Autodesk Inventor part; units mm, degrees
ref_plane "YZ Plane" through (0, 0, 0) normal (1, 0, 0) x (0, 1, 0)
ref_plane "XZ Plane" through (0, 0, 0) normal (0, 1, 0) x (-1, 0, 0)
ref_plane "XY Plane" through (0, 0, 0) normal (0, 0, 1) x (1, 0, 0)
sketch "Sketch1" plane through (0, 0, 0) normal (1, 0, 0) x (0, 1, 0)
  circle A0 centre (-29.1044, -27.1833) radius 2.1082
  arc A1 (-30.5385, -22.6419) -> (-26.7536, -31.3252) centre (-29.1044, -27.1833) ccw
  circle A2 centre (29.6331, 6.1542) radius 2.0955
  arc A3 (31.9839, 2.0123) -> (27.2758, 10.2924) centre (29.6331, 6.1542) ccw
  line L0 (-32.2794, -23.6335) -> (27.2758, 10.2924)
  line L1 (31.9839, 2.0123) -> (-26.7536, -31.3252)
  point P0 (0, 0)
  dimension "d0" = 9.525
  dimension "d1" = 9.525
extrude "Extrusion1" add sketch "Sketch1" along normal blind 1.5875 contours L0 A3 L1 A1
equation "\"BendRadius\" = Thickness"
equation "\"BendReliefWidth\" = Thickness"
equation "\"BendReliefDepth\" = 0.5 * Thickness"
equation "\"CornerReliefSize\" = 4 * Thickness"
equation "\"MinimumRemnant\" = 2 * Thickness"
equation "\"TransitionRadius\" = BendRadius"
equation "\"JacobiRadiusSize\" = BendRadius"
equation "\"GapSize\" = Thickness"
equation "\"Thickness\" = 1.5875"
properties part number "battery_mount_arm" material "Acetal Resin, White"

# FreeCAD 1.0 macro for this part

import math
import FreeCAD as App
import Part
import Sketcher
from FreeCAD import Vector
Q = App.Units.Quantity

doc = App.newDocument("Part")
params = doc.addObject("Spreadsheet::Sheet", "Params")
for row, (alias, value) in enumerate([
    ("sketch1_radius", "0.1875 in"),
    ("sketch1_diameter", "0.166 in"),
    ("sketch1_diameter2", "0.165 in"),
    ("sketch1_length", "2.659 in"),
    ("pad1_length", "0.0625 in"),
], start=1):
    params.set(f"A{row}", alias)
    params.set(f"B{row}", "=" + value)
    params.setAlias(f"B{row}", alias)

body = doc.addObject("PartDesign::Body", "Body")

# Sketch on YZ plane
sketch1 = doc.addObject("Sketcher::SketchObject", "Sketch")
body.addObject(sketch1)
sketch1.AttachmentSupport = (doc.YZ_Plane, [""])
sketch1.MapMode = "FlatFace"
sketch1.addGeometry([
    Part.LineSegment(Vector(27.3, 10.3, 0), Vector(-32.3, -23.6, 0)),  # 0
    Part.ArcOfCircle(Part.Circle(Vector(-29.1, -27.2, 0), Vector(0, 0, 1), 4.8), math.radians(132), math.radians(300)),  # 1
    Part.LineSegment(Vector(-26.8, -31.3, 0), Vector(32, 2, 0)),  # 2
    Part.ArcOfCircle(Part.Circle(Vector(29.6, 6.2, 0), Vector(0, 0, 1), 4.8), math.radians(-60), math.radians(120)),  # 3
    Part.Circle(Vector(-29.1, -27.2, 0), Vector(0, 0, 1), 2.1),  # 4
    Part.Circle(Vector(29.6, 6.2, 0), Vector(0, 0, 1), 2.1),  # 5
], False)
sketch1.addConstraint([
    Sketcher.Constraint("Coincident", 0, 2, 1, 1),
    Sketcher.Constraint("Tangent", 1, 2, 2, 1),
    Sketcher.Constraint("Tangent", 2, 2, 3, 1),
    Sketcher.Constraint("Tangent", 3, 2, 0, 1),
    Sketcher.Constraint("Coincident", 4, 3, 1, 3),
    Sketcher.Constraint("Coincident", 5, 3, 3, 3),
    Sketcher.Constraint("Equal", 1, 3),
    Sketcher.Constraint("Radius", 1, Q("0.1875 in")),
    Sketcher.Constraint("Diameter", 4, Q("0.166 in")),
    Sketcher.Constraint("Diameter", 5, Q("0.165 in")),
    Sketcher.Constraint("Distance", 2, Q("2.659 in")),
    Sketcher.Constraint("DistanceX", 1, 3, 3, 3, Q("2.3125 in")),
    Sketcher.Constraint("DistanceX", 0, 2, 1, 3, Q("0.125 in")),
    Sketcher.Constraint("DistanceY", 1, 3, -1, 1, Q("1.0702 in")),
    Sketcher.Constraint("DistanceX", 1, 2, -1, 1, Q("1.0533 in")),
])
sketch1.setExpression("Constraints[7]", "Params.sketch1_radius")
sketch1.setExpression("Constraints[8]", "Params.sketch1_diameter")
sketch1.setExpression("Constraints[9]", "Params.sketch1_diameter2")
sketch1.setExpression("Constraints[10]", "Params.sketch1_length")
pad1 = doc.addObject("PartDesign::Pad", "Pad")
body.addObject(pad1)
pad1.Profile = sketch1
pad1.setExpression("Length", "Params.pad1_length")

doc.recompute()
